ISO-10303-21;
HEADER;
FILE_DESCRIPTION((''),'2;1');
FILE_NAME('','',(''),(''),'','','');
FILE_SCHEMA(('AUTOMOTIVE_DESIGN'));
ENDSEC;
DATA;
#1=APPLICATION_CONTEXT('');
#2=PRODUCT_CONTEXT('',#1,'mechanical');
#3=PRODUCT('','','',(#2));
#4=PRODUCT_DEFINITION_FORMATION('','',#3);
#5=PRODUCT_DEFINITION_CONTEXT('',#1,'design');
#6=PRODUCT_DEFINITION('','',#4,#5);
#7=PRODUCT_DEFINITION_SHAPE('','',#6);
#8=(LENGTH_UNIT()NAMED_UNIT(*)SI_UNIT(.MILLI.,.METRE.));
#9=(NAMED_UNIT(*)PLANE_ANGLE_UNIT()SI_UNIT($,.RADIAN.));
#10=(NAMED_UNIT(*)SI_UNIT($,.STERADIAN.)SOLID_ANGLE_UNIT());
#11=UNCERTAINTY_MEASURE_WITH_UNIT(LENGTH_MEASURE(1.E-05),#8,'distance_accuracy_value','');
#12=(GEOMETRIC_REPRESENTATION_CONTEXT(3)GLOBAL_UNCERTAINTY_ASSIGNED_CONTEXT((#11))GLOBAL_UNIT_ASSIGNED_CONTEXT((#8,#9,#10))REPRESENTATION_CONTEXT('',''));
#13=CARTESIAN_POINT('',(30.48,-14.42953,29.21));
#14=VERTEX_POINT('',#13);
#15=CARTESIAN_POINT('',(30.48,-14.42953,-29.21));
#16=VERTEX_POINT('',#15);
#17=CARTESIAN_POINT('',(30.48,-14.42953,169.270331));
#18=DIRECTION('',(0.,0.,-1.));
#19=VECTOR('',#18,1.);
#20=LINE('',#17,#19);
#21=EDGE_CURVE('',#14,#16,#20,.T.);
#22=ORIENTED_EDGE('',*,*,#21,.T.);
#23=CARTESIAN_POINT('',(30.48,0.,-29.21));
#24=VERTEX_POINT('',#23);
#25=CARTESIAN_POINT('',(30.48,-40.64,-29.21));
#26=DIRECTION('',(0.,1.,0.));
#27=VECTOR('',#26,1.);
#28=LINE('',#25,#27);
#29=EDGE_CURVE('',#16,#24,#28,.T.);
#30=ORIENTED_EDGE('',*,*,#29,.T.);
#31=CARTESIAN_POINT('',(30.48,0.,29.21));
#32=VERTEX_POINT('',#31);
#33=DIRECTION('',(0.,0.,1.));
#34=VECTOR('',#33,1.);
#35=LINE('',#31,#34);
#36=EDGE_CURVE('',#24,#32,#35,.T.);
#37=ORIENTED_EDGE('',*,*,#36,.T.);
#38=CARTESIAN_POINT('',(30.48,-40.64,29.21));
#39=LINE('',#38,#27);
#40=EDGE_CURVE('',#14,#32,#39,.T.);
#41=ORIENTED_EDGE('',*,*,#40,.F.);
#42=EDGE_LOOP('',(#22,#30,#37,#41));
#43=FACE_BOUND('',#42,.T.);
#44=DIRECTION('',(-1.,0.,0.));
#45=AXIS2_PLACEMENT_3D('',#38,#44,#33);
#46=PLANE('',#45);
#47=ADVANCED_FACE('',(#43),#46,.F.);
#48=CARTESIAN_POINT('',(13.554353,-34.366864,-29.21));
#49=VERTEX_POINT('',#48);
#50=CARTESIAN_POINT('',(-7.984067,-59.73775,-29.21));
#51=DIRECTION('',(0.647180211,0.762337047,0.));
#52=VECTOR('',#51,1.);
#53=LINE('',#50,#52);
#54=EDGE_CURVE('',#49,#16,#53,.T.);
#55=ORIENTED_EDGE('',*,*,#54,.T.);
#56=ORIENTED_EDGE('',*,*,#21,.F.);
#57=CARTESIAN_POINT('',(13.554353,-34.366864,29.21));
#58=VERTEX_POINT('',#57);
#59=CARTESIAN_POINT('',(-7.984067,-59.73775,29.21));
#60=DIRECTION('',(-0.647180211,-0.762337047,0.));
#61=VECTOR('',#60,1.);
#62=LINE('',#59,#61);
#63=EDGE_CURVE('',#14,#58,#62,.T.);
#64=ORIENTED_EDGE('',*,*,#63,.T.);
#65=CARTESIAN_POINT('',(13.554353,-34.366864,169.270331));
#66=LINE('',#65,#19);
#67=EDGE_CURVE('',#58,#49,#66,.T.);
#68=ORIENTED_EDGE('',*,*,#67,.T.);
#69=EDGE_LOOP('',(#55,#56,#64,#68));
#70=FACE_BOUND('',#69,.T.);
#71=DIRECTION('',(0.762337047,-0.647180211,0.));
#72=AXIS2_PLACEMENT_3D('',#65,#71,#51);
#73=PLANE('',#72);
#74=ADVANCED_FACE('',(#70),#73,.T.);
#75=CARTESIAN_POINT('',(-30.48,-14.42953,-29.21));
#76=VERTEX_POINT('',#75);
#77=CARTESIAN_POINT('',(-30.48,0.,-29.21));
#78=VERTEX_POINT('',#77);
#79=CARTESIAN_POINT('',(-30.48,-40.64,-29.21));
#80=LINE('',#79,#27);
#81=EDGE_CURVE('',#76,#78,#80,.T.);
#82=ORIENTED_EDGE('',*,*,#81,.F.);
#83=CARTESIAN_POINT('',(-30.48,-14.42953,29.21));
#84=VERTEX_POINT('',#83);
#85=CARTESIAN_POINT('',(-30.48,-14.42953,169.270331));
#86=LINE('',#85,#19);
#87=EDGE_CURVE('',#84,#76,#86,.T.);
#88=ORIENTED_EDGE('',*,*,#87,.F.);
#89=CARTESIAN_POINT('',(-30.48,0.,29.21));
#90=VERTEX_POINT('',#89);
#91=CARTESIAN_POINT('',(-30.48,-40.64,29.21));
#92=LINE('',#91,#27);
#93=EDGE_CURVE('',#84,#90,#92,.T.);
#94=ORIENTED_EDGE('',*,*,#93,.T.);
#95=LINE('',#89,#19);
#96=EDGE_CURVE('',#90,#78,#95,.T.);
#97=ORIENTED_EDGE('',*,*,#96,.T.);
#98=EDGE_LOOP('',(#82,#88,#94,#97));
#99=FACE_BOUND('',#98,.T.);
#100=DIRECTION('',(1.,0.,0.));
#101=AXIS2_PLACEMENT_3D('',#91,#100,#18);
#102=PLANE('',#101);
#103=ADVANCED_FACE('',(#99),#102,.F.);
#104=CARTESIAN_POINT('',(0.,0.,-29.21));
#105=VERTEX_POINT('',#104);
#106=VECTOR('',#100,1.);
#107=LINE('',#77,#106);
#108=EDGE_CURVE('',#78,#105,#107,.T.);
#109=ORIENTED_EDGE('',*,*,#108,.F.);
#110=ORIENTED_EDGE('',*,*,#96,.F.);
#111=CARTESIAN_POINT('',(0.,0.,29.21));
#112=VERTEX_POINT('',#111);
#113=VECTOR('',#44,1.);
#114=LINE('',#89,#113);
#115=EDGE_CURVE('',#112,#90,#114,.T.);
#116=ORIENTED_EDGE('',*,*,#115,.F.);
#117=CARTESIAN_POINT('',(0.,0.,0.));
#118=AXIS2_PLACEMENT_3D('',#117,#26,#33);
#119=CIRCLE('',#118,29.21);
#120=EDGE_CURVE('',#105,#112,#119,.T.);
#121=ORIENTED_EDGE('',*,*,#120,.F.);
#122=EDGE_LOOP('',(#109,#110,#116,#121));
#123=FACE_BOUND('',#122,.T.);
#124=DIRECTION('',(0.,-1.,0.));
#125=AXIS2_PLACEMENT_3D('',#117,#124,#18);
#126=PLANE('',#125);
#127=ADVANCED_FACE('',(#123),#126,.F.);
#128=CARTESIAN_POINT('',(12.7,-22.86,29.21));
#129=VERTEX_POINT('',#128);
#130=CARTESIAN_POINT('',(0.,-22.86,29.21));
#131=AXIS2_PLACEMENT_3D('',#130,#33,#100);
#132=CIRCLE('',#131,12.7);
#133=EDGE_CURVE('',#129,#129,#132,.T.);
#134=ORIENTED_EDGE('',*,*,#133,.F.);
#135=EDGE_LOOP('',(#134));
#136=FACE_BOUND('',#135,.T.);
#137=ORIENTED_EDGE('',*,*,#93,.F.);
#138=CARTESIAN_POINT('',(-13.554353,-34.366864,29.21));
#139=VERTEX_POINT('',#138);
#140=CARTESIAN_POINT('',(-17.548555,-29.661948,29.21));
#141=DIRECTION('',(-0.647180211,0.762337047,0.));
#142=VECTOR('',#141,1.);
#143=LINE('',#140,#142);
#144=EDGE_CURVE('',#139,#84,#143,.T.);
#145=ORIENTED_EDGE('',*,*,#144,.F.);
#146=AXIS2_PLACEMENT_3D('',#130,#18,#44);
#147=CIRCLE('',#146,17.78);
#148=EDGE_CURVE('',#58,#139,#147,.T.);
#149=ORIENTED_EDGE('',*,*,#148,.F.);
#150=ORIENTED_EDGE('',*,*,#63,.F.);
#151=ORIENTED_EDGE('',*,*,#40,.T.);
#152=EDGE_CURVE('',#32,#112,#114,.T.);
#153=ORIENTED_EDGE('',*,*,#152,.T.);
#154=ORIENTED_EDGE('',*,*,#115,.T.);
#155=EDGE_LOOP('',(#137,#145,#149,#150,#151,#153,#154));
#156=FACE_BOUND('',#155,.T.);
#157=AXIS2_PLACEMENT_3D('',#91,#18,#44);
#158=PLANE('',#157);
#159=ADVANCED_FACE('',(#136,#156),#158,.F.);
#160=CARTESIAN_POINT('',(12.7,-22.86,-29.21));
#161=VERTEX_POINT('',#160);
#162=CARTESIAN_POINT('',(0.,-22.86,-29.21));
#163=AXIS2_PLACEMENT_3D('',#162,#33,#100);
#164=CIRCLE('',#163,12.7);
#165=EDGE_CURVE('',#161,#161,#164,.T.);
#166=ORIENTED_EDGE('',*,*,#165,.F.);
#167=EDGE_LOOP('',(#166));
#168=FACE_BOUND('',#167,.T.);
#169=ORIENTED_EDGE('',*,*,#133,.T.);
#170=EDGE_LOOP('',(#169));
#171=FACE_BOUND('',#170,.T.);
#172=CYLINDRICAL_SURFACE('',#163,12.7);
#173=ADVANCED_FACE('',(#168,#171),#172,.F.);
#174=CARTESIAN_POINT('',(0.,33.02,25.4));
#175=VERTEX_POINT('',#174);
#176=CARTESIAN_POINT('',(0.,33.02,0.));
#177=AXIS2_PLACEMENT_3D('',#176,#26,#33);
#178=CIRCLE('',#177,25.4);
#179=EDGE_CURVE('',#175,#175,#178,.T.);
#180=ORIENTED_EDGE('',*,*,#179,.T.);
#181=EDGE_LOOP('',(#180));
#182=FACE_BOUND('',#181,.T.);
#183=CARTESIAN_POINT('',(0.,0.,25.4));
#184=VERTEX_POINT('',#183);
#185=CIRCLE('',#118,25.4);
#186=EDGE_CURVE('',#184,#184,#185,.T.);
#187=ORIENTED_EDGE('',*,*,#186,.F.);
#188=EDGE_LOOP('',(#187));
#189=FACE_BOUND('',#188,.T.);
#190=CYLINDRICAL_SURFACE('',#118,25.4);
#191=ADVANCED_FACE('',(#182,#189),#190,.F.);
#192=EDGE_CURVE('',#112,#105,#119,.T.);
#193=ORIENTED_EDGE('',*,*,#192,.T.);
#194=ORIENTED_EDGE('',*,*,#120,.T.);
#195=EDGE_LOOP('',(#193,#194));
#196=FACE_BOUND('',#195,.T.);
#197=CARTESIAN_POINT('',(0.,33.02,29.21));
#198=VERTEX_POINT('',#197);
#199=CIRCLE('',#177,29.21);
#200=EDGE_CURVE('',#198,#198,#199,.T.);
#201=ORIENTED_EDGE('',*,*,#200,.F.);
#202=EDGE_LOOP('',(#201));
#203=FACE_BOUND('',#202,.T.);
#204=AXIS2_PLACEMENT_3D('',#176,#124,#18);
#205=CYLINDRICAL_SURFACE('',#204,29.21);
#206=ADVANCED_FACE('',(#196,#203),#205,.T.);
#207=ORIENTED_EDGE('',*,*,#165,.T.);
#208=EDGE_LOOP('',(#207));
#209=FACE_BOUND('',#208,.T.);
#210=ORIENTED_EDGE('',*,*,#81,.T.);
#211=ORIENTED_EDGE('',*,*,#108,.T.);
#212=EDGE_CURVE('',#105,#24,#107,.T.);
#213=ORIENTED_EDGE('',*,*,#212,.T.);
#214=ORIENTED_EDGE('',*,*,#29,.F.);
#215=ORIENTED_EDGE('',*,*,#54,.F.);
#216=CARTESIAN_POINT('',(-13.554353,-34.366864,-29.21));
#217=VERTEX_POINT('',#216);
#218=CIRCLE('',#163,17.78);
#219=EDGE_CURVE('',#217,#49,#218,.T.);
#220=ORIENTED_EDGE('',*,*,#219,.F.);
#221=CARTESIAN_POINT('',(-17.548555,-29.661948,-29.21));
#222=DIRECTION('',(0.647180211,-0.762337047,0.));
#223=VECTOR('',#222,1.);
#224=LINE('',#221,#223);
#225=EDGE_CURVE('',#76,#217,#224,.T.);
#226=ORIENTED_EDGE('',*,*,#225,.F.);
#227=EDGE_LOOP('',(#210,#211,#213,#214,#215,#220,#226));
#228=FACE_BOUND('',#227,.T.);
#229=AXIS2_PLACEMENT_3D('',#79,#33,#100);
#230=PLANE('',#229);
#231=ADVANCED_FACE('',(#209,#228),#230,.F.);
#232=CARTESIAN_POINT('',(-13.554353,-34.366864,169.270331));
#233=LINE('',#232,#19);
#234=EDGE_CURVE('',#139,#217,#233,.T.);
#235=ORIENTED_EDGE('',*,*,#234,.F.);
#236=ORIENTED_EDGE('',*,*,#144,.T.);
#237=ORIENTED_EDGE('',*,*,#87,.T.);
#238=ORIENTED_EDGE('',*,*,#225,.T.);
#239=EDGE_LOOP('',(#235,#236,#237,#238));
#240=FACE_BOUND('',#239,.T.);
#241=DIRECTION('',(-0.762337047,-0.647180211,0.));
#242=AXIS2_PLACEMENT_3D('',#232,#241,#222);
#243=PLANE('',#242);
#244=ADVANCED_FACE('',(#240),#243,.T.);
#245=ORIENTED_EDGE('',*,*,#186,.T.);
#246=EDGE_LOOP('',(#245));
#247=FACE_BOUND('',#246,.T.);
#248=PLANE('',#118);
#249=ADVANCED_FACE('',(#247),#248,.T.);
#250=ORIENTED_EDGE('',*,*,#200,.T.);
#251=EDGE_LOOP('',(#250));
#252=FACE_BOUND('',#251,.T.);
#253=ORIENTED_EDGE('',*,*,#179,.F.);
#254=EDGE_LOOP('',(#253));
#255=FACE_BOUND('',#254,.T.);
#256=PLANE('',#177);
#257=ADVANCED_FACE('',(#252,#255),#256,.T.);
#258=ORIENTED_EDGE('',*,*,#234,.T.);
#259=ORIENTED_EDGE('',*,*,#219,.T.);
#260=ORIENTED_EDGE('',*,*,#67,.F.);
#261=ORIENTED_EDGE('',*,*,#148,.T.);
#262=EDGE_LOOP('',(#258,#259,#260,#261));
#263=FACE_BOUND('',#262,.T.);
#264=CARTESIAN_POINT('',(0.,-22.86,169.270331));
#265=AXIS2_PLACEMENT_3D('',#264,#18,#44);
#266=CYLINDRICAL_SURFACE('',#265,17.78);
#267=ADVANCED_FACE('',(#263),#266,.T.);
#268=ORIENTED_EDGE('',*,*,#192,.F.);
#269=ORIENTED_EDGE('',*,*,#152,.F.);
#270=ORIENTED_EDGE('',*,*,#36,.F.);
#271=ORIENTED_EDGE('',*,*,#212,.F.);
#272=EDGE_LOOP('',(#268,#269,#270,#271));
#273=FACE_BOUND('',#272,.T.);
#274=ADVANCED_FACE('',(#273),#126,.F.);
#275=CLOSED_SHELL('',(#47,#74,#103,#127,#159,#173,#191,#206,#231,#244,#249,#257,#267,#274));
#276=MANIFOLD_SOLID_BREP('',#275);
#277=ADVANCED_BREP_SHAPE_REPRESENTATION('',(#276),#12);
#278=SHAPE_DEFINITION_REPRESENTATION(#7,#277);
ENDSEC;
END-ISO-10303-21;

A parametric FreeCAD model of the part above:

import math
import FreeCAD as App
import Part
import Sketcher

V = App.Vector
Q = App.Units.Quantity

doc = App.newDocument("Part")
body = doc.addObject("PartDesign::Body", "Body")

sketch1 = body.newObject("Sketcher::SketchObject", "Sketch")
sketch1.AttachmentSupport = (doc.getObject("XZ_Plane"), [""])
sketch1.MapMode = "FlatFace"
sketch1.addGeometry(Part.Circle(V(0, 0, 0), V(0, 0, 1), 29.21), False)
sketch1.addConstraint(Sketcher.Constraint("Coincident", 0, 3, -1, 1))
sketch1.addConstraint(Sketcher.Constraint("Diameter", 0, Q("2.3 in")))
pad1 = body.newObject("PartDesign::Pad", "Pad")
pad1.Profile = sketch1
pad1.Length = Q("1.3 in")
pad1.Reversed = True

sketch2 = body.newObject("Sketcher::SketchObject", "Sketch001")
sketch2.AttachmentSupport = (doc.getObject("XZ_Plane"), [""])
sketch2.MapMode = "FlatFace"
sketch2.addGeometry(Part.LineSegment(V(-30.48, 29.21, 0), V(-30.48, -29.21, 0)), False)
sketch2.addGeometry(Part.LineSegment(V(-30.48, -29.21, 0), V(30.48, -29.21, 0)), False)
sketch2.addGeometry(Part.LineSegment(V(30.48, -29.21, 0), V(30.48, 29.21, 0)), False)
sketch2.addGeometry(Part.LineSegment(V(30.48, 29.21, 0), V(-30.48, 29.21, 0)), False)
sketch2.addConstraint(Sketcher.Constraint("Coincident", 0, 2, 1, 1))
sketch2.addConstraint(Sketcher.Constraint("Coincident", 1, 2, 2, 1))
sketch2.addConstraint(Sketcher.Constraint("Coincident", 2, 2, 3, 1))
sketch2.addConstraint(Sketcher.Constraint("Coincident", 3, 2, 0, 1))
sketch2.addConstraint(Sketcher.Constraint("Vertical", 0))
sketch2.addConstraint(Sketcher.Constraint("Horizontal", 1))
sketch2.addConstraint(Sketcher.Constraint("Vertical", 2))
sketch2.addConstraint(Sketcher.Constraint("Horizontal", 3))
sketch2.addConstraint(Sketcher.Constraint("Symmetric", 0, 2, 2, 2, -1, 1))
sketch2.addConstraint(Sketcher.Constraint("DistanceX", 1, 1, 1, 2, Q("2.4 in")))
sketch2.addConstraint(Sketcher.Constraint("DistanceY", 0, 2, 0, 1, Q("2.3 in")))
pad2 = body.newObject("PartDesign::Pad", "Pad001")
pad2.Profile = sketch2
pad2.Length = Q("1.6 in")

sketch3 = body.newObject("Sketcher::SketchObject", "Sketch002")
sketch3.AttachmentSupport = (doc.getObject("XY_Plane"), [""])
sketch3.MapMode = "FlatFace"
sketch3.AttachmentOffset = App.Placement(V(0, 0, 1.15 * 25.4), App.Rotation())
sketch3.addGeometry(Part.Circle(V(0, -22.86, 0), V(0, 0, 1), 12.7), False)
sketch3.addConstraint(Sketcher.Constraint("PointOnObject", 0, 3, -2))
sketch3.addConstraint(Sketcher.Constraint("Diameter", 0, Q("1 in")))
sketch3.addConstraint(Sketcher.Constraint("DistanceY", 0, 3, -1, 1, Q("0.9 in")))
pocket1 = body.newObject("PartDesign::Pocket", "Pocket")
pocket1.Profile = sketch3
pocket1.Type = "ThroughAll"

sketch4 = body.newObject("Sketcher::SketchObject", "Sketch003")
sketch4.AttachmentSupport = (doc.getObject("XZ_Plane"), [""])
sketch4.MapMode = "FlatFace"
sketch4.AttachmentOffset = App.Placement(V(0, 0, -1.3 * 25.4), App.Rotation())
sketch4.addGeometry(Part.Circle(V(0, 0, 0), V(0, 0, 1), 25.4), False)
sketch4.addConstraint(Sketcher.Constraint("Coincident", 0, 3, -1, 1))
sketch4.addConstraint(Sketcher.Constraint("Diameter", 0, Q("2 in")))
pocket2 = body.newObject("PartDesign::Pocket", "Pocket001")
pocket2.Profile = sketch4
pocket2.Length = Q("1.3 in")
pocket2.Reversed = True

sketch5 = body.newObject("Sketcher::SketchObject", "Sketch004")
sketch5.AttachmentSupport = (doc.getObject("XY_Plane"), [""])
sketch5.MapMode = "FlatFace"
sketch5.AttachmentOffset = App.Placement(V(0, 0, 1.15 * 25.4), App.Rotation())
sketch5.addGeometry(Part.LineSegment(V(30.48, -14.42953, 0), V(13.554353, -34.366864, 0)), False)
sketch5.addGeometry(Part.ArcOfCircle(Part.Circle(V(0, -22.86, 0), V(0, 0, 1), 17.78), math.radians(-90), math.radians(-40.329338)), False)
sketch5.addGeometry(Part.LineSegment(V(0, -40.64, 0), V(30.48, -40.64, 0)), False)
sketch5.addGeometry(Part.LineSegment(V(30.48, -40.64, 0), V(30.48, -14.42953, 0)), False)
sketch5.addGeometry(Part.LineSegment(V(-30.48, -40.64, 0), V(0, -40.64, 0)), False)
sketch5.addGeometry(Part.ArcOfCircle(Part.Circle(V(0, -22.86, 0), V(0, 0, 1), 17.78), math.radians(-139.670662), math.radians(-90)), False)
sketch5.addGeometry(Part.LineSegment(V(-13.554353, -34.366864, 0), V(-30.48, -14.42953, 0)), False)
sketch5.addGeometry(Part.LineSegment(V(-30.48, -14.42953, 0), V(-30.48, -40.64, 0)), False)
sketch5.addConstraint(Sketcher.Constraint("Tangent", 0, 2, 1, 2))
sketch5.addConstraint(Sketcher.Constraint("Tangent", 1, 1, 2, 1))
sketch5.addConstraint(Sketcher.Constraint("Coincident", 2, 2, 3, 1))
sketch5.addConstraint(Sketcher.Constraint("Coincident", 3, 2, 0, 1))
sketch5.addConstraint(Sketcher.Constraint("Tangent", 4, 2, 5, 2))
sketch5.addConstraint(Sketcher.Constraint("Tangent", 5, 1, 6, 1))
sketch5.addConstraint(Sketcher.Constraint("Coincident", 6, 2, 7, 1))
sketch5.addConstraint(Sketcher.Constraint("Coincident", 7, 2, 4, 1))
sketch5.addConstraint(Sketcher.Constraint("Horizontal", 2))
sketch5.addConstraint(Sketcher.Constraint("Vertical", 3))
sketch5.addConstraint(Sketcher.Constraint("Horizontal", 4))
sketch5.addConstraint(Sketcher.Constraint("Vertical", 7))
sketch5.addConstraint(Sketcher.Constraint("Coincident", 5, 3, 1, 3))
sketch5.addConstraint(Sketcher.Constraint("Equal", 1, 5))
sketch5.addConstraint(Sketcher.Constraint("Symmetric", 0, 2, 5, 1, -2))
sketch5.addConstraint(Sketcher.Constraint("Horizontal", 3, 2, 6, 2))
sketch5.addConstraint(Sketcher.Constraint("Radius", 1, Q("0.7 in")))
sketch5.addConstraint(Sketcher.Constraint("DistanceX", 2, 1, 2, 2, Q("1.2 in")))
sketch5.addConstraint(Sketcher.Constraint("DistanceY", 1, 3, -1, 1, Q("0.9 in")))
sketch5.addConstraint(Sketcher.Constraint("DistanceY", 3, 1, 3, 2, 26.21047))
pocket3 = body.newObject("PartDesign::Pocket", "Pocket002")
pocket3.Profile = sketch5
pocket3.Type = "ThroughAll"
pocket3.Midplane = True

doc.recompute()
